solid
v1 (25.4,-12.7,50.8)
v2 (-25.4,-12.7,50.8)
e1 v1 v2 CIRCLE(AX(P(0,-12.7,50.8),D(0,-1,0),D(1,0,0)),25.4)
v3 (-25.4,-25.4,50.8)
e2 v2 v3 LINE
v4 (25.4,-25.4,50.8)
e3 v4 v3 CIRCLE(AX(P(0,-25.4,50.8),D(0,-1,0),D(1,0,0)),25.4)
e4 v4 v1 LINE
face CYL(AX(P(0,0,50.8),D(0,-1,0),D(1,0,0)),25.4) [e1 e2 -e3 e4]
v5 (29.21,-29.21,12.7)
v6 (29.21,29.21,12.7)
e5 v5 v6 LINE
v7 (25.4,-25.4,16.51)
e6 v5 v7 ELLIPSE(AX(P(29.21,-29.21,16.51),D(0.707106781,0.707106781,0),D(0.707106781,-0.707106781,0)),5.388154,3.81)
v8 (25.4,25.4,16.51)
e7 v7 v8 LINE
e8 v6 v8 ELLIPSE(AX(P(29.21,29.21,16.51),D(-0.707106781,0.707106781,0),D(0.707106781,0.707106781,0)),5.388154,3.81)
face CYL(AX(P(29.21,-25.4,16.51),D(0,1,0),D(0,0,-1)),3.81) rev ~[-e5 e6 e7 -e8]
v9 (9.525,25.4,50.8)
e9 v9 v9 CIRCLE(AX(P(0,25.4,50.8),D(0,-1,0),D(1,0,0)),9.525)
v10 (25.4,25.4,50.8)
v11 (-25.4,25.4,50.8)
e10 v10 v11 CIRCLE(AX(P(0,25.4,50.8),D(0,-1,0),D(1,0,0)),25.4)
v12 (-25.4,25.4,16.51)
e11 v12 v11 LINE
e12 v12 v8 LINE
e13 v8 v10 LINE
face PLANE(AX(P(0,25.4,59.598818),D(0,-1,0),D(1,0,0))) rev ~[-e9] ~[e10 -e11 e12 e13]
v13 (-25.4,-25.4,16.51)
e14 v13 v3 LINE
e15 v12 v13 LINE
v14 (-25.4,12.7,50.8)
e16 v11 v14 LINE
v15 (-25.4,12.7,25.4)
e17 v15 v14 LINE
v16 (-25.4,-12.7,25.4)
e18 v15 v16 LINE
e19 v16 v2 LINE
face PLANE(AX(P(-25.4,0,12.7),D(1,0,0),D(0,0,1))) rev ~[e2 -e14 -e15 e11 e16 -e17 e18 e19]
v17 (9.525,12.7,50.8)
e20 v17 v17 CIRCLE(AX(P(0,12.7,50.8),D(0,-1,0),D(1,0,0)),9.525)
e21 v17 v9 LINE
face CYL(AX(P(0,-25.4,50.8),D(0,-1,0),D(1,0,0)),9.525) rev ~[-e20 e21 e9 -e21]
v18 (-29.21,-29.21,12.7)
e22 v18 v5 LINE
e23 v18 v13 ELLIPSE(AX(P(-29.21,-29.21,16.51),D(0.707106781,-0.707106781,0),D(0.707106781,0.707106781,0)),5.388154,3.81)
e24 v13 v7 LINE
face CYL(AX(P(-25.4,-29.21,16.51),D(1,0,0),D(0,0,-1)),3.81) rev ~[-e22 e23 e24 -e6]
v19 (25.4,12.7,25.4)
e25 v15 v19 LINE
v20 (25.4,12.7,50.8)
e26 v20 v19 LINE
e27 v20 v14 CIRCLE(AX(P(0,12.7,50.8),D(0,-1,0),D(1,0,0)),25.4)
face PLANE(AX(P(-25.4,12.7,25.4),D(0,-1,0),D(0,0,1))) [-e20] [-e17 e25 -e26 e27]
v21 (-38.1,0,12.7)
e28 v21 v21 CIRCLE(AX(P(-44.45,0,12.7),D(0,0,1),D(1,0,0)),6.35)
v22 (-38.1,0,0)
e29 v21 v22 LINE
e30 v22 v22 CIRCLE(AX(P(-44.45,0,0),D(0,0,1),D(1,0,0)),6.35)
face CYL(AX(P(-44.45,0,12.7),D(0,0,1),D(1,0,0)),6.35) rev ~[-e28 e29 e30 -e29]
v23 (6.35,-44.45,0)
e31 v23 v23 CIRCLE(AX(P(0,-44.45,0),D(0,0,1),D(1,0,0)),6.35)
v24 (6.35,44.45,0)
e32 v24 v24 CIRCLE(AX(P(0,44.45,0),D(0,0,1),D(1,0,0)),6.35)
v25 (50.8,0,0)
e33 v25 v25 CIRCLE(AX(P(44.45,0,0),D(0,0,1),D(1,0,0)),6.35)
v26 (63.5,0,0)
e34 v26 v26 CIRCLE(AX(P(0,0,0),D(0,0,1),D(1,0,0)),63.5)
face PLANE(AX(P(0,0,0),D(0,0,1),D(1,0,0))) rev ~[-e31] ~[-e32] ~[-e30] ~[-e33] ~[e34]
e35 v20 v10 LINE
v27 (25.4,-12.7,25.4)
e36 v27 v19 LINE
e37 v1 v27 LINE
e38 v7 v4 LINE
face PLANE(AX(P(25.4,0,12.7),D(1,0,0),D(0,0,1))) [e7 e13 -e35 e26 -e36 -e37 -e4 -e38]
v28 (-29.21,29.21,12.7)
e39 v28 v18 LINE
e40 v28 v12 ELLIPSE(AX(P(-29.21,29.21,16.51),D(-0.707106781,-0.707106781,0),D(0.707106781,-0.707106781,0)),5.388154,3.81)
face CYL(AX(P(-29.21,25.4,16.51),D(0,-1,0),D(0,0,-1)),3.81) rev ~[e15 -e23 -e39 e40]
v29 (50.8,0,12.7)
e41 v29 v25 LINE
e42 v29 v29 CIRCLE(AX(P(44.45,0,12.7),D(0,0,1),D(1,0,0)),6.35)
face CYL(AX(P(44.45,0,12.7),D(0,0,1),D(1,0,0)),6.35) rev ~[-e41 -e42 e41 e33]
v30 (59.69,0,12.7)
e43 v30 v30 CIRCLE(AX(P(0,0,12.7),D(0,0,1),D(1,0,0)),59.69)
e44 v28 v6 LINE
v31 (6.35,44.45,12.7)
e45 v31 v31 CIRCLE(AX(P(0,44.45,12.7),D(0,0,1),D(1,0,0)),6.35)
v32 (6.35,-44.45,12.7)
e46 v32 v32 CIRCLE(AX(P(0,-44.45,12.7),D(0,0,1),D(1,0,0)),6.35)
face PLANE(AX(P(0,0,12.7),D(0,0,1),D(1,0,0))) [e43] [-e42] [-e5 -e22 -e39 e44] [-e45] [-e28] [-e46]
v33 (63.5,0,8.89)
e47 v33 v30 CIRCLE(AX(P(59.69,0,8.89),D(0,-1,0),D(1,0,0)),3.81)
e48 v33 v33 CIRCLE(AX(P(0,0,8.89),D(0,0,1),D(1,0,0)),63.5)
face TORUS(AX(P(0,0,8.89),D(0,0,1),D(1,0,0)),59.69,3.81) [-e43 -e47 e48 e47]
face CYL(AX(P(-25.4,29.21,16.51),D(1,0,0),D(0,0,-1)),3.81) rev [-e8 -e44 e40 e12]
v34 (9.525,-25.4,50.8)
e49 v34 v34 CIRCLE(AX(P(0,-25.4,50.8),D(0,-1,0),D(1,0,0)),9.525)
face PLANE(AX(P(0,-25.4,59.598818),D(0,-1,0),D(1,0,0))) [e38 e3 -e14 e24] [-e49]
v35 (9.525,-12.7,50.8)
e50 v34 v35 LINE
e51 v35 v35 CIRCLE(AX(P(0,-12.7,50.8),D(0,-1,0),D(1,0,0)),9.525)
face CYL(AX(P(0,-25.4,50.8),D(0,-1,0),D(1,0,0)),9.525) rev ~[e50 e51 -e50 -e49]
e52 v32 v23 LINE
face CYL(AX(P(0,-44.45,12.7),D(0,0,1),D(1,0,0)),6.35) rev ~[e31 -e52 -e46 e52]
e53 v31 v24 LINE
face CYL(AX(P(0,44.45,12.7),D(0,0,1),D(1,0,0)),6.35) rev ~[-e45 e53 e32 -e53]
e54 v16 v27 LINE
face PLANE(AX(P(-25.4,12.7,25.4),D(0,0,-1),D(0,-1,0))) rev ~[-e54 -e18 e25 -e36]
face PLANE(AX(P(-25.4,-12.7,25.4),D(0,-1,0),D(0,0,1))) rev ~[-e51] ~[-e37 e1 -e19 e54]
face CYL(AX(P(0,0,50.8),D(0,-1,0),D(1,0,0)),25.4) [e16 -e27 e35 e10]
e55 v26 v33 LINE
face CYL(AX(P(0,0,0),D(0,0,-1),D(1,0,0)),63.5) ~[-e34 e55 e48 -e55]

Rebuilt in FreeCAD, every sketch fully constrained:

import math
import FreeCAD as App
import Part
import Sketcher

V = App.Vector
Q = App.Units.Quantity


def edges_at(feature, points):
    """Names of the edges that pass closest to the given points."""
    edges = feature.Shape.Edges
    near = lambda p: min(range(len(edges)), key=lambda i: edges[i].distToShape(Part.Vertex(*p))[0])
    return sorted({f"Edge{near(p) + 1}" for p in points})

doc = App.newDocument("Part")
params = doc.addObject("Spreadsheet::Sheet", "Params")
for row, (alias, value) in enumerate([
    ("sketch1_diameter", "5 in"),
    ("pad1_length", "0.5 in"),
    ("sketch2_diameter", "0.5 in"),
    ("sketch3_radius", "1 in"),
    ("sketch3_height", "1.5 in"),
    ("pad2_length", "2 in"),
    ("sketch4_diameter", "0.75 in"),
    ("sketch5_width", "1 in"),
    ("sketch5_height", "2 in"),
    ("fillet_radius", "0.15 in"),
], start=1):
    params.set(f"A{row}", alias)
    params.set(f"B{row}", "=" + value)
    params.setAlias(f"B{row}", alias)

body = doc.addObject("PartDesign::Body", "Body")

sketch1 = doc.addObject("Sketcher::SketchObject", "Sketch")
body.addObject(sketch1)
sketch1.AttachmentSupport = (doc.XY_Plane, [""])
sketch1.MapMode = "FlatFace"
sketch1.addGeometry(Part.Circle(V(0, 0, 0), V(0, 0, 1), 64), False)
sketch1.addConstraint(Sketcher.Constraint("Coincident", 0, 3, -1, 1))
sketch1.addConstraint(Sketcher.Constraint("Diameter", 0, Q("5 in")))
sketch1.setExpression("Constraints[1]", "Params.sketch1_diameter")
pad1 = doc.addObject("PartDesign::Pad", "Pad")
body.addObject(pad1)
pad1.Profile = sketch1
pad1.setExpression("Length", "Params.pad1_length")

sketch2 = doc.addObject("Sketcher::SketchObject", "Sketch001")
body.addObject(sketch2)
sketch2.AttachmentSupport = (doc.XY_Plane, [""])
sketch2.MapMode = "FlatFace"
sketch2.AttachmentOffset = App.Placement(V(0, 0, 0.5 * 25.4), App.Rotation())
sketch2.addGeometry(Part.Circle(V(0, 44, 0), V(0, 0, 1), 6), False)
sketch2.addGeometry(Part.Circle(V(-44, 0, 0), V(0, 0, 1), 6), False)
sketch2.addGeometry(Part.Circle(V(0, -44, 0), V(0, 0, 1), 6), False)
sketch2.addGeometry(Part.Circle(V(44, 0, 0), V(0, 0, 1), 6), False)
sketch2.addConstraint(Sketcher.Constraint("Equal", 0, 1))
sketch2.addConstraint(Sketcher.Constraint("Equal", 1, 2))
sketch2.addConstraint(Sketcher.Constraint("Equal", 2, 3))
sketch2.addConstraint(Sketcher.Constraint("Symmetric", 0, 3, 2, 3, -1, 1))
sketch2.addConstraint(Sketcher.Constraint("Symmetric", 1, 3, 3, 3, -1, 1))
sketch2.addConstraint(Sketcher.Constraint("PointOnObject", 0, 3, -2))
sketch2.addConstraint(Sketcher.Constraint("PointOnObject", 1, 3, -1))
sketch2.addConstraint(Sketcher.Constraint("Diameter", 0, Q("0.5 in")))
sketch2.addConstraint(Sketcher.Constraint("DistanceY", 2, 3, 0, 3, Q("3.5 in")))
sketch2.addConstraint(Sketcher.Constraint("DistanceX", 1, 3, 3, 3, Q("3.5 in")))
sketch2.setExpression("Constraints[7]", "Params.sketch2_diameter")
pocket1 = doc.addObject("PartDesign::Pocket", "Pocket")
body.addObject(pocket1)
pocket1.Profile = sketch2
pocket1.Type = "ThroughAll"

sketch3 = doc.addObject("Sketcher::SketchObject", "Sketch002")
body.addObject(sketch3)
sketch3.AttachmentSupport = (doc.XZ_Plane, [""])
sketch3.MapMode = "FlatFace"
sketch3.addGeometry(Part.ArcOfCircle(Part.Circle(V(0, 51, 0), V(0, 0, 1), 25), math.radians(0), math.radians(180)), False)
sketch3.addGeometry(Part.LineSegment(V(-25, 51, 0), V(-25, 13, 0)), False)
sketch3.addGeometry(Part.LineSegment(V(-25, 13, 0), V(25, 13, 0)), False)
sketch3.addGeometry(Part.LineSegment(V(25, 13, 0), V(25, 51, 0)), False)
sketch3.addConstraint(Sketcher.Constraint("Tangent", 0, 2, 1, 1))
sketch3.addConstraint(Sketcher.Constraint("Coincident", 1, 2, 2, 1))
sketch3.addConstraint(Sketcher.Constraint("Coincident", 2, 2, 3, 1))
sketch3.addConstraint(Sketcher.Constraint("Tangent", 3, 2, 0, 1))
sketch3.addConstraint(Sketcher.Constraint("Vertical", 1))
sketch3.addConstraint(Sketcher.Constraint("Horizontal", 2))
sketch3.addConstraint(Sketcher.Constraint("Vertical", 3))
sketch3.addConstraint(Sketcher.Constraint("PointOnObject", 0, 3, -2))
sketch3.addConstraint(Sketcher.Constraint("Radius", 0, Q("1 in")))
sketch3.addConstraint(Sketcher.Constraint("DistanceY", 1, 2, 1, 1, Q("1.5 in")))
sketch3.addConstraint(Sketcher.Constraint("DistanceY", -1, 1, 0, 3, Q("2 in")))
sketch3.setExpression("Constraints[8]", "Params.sketch3_radius")
sketch3.setExpression("Constraints[9]", "Params.sketch3_height")
pad2 = doc.addObject("PartDesign::Pad", "Pad001")
body.addObject(pad2)
pad2.Profile = sketch3
pad2.setExpression("Length", "Params.pad2_length")
pad2.Midplane = True

sketch4 = doc.addObject("Sketcher::SketchObject", "Sketch003")
body.addObject(sketch4)
sketch4.AttachmentSupport = (doc.XZ_Plane, [""])
sketch4.MapMode = "FlatFace"
sketch4.AttachmentOffset = App.Placement(V(0, 0, 1 * 25.4), App.Rotation())
sketch4.addGeometry(Part.Circle(V(0, 51, 0), V(0, 0, 1), 10), False)
sketch4.addConstraint(Sketcher.Constraint("PointOnObject", 0, 3, -2))
sketch4.addConstraint(Sketcher.Constraint("Diameter", 0, Q("0.75 in")))
sketch4.addConstraint(Sketcher.Constraint("DistanceY", -1, 1, 0, 3, Q("2 in")))
sketch4.setExpression("Constraints[1]", "Params.sketch4_diameter")
pocket2 = doc.addObject("PartDesign::Pocket", "Pocket001")
body.addObject(pocket2)
pocket2.Profile = sketch4
pocket2.Type = "ThroughAll"

sketch5 = doc.addObject("Sketcher::SketchObject", "Sketch004")
body.addObject(sketch5)
sketch5.AttachmentSupport = (doc.YZ_Plane, [""])
sketch5.MapMode = "FlatFace"
sketch5.AttachmentOffset = App.Placement(V(0, 0, -1 * 25.4), App.Rotation())
sketch5.addGeometry(Part.LineSegment(V(13, 76, 0), V(13, 25, 0)), False)
sketch5.addGeometry(Part.LineSegment(V(13, 25, 0), V(-13, 25, 0)), False)
sketch5.addGeometry(Part.LineSegment(V(-13, 25, 0), V(-13, 76, 0)), False)
sketch5.addGeometry(Part.LineSegment(V(-13, 76, 0), V(13, 76, 0)), False)
sketch5.addConstraint(Sketcher.Constraint("Coincident", 0, 2, 1, 1))
sketch5.addConstraint(Sketcher.Constraint("Coincident", 1, 2, 2, 1))
sketch5.addConstraint(Sketcher.Constraint("Coincident", 2, 2, 3, 1))
sketch5.addConstraint(Sketcher.Constraint("Coincident", 3, 2, 0, 1))
sketch5.addConstraint(Sketcher.Constraint("Vertical", 0))
sketch5.addConstraint(Sketcher.Constraint("Horizontal", 1))
sketch5.addConstraint(Sketcher.Constraint("Vertical", 2))
sketch5.addConstraint(Sketcher.Constraint("Horizontal", 3))
sketch5.addConstraint(Sketcher.Constraint("DistanceX", 1, 2, 1, 1, Q("1 in")))
sketch5.addConstraint(Sketcher.Constraint("DistanceY", 0, 2, 0, 1, Q("2 in")))
sketch5.addConstraint(Sketcher.Constraint("DistanceY", -1, 1, 0, 2, Q("1 in")))
sketch5.addConstraint(Sketcher.Constraint("DistanceX", -1, 1, 0, 2, Q("0.5 in")))
sketch5.setExpression("Constraints[8]", "Params.sketch5_width")
sketch5.setExpression("Constraints[9]", "Params.sketch5_height")
pocket3 = doc.addObject("PartDesign::Pocket", "Pocket002")
body.addObject(pocket3)
pocket3.Profile = sketch5
pocket3.Type = "ThroughAll"
pocket3.Reversed = True
doc.recompute()

fillet = doc.addObject("PartDesign::Fillet", "Fillet")
body.addObject(fillet)
fillet.Base = (pocket3, edges_at(pocket3, [
    (0, -25.4, 12.7),
    (25.4, 0, 12.7),
    (-63.5, 0, 12.7),
    (0, 25.4, 12.7),
    (-25.4, 0, 12.7),
]))
fillet.setExpression("Radius", "Params.fillet_radius")

doc.recompute()
